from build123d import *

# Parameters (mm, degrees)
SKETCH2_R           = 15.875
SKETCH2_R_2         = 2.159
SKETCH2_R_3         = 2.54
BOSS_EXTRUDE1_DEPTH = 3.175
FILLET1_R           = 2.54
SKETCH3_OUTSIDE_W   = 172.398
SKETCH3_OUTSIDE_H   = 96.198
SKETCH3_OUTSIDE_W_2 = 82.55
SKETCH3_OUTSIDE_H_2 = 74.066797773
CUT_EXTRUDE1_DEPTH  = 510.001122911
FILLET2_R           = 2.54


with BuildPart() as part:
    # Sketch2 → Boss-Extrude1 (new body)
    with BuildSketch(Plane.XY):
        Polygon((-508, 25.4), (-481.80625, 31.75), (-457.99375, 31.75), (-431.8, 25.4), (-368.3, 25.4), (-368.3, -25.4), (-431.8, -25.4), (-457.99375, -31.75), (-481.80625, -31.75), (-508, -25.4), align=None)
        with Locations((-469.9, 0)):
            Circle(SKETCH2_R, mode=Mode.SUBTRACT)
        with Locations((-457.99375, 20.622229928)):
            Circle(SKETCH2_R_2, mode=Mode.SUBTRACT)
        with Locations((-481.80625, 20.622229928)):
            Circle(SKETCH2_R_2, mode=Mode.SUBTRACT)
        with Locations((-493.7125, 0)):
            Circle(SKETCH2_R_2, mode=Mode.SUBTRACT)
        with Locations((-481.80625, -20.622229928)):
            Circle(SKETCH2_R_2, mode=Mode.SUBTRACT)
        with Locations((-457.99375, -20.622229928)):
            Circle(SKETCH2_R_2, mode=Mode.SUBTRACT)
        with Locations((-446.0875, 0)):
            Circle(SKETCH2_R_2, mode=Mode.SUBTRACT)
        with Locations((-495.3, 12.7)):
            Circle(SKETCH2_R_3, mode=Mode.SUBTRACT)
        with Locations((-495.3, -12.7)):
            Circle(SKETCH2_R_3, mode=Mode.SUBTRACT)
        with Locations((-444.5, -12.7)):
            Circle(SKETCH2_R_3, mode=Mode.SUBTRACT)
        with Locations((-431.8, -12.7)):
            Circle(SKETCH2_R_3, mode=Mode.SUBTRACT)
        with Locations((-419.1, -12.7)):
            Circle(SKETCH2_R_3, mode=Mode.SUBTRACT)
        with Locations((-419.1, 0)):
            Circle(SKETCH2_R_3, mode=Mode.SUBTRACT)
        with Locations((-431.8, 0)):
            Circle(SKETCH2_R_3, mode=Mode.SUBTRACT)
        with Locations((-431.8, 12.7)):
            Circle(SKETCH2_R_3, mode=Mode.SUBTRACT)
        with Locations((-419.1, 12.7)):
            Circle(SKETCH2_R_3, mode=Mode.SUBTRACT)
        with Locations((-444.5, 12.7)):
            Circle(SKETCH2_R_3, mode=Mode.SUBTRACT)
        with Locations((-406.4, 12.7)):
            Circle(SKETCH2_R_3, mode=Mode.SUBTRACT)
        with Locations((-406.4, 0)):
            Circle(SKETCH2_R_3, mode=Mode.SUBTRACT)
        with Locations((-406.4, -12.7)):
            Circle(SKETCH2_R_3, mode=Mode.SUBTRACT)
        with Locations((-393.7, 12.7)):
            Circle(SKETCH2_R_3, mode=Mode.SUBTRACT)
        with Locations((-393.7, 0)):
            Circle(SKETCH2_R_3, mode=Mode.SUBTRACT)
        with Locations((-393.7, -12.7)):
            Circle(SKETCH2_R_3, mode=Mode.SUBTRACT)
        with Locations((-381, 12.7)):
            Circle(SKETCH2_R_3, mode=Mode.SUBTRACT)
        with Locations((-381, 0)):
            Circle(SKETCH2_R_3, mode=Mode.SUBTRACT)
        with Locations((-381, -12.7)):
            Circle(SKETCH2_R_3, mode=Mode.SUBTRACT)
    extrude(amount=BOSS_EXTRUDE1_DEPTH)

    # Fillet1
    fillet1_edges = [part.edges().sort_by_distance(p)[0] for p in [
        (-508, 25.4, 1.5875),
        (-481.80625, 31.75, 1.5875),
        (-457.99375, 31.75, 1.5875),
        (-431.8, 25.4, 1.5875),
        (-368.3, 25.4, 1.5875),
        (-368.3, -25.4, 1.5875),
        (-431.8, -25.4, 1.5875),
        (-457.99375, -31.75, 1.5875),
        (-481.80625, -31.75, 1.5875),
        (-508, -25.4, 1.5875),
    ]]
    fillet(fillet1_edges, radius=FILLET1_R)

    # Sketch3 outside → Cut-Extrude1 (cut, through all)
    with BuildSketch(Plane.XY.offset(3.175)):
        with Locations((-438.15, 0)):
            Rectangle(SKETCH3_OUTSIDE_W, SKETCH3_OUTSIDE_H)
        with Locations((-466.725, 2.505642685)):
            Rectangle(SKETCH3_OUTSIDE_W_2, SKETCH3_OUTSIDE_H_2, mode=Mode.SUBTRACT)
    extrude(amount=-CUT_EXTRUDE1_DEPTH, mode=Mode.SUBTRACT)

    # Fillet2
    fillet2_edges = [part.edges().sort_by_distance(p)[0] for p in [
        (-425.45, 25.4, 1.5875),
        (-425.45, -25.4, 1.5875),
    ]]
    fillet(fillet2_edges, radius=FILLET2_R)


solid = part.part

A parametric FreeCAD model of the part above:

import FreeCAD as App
import Part
import Sketcher
from FreeCAD import Vector
Q = App.Units.Quantity


def edges_at(feature, points):
    """Names of the edges that pass closest to the given points."""
    edges = feature.Shape.Edges
    near = lambda p: min(range(len(edges)), key=lambda i: edges[i].distToShape(Part.Vertex(*p))[0])
    return sorted({f"Edge{near(p) + 1}" for p in points})


def add_polygon(sketch, points):
    """Adds a closed chain of lines whose ends are joined by coincident constraints."""
    first, n = sketch.GeometryCount, len(points)
    for a, b in zip(points, points[1:] + points[:1]):
        sketch.addGeometry(Part.LineSegment(App.Vector(*a, 0), App.Vector(*b, 0)), False)
    for i in range(n):
        sketch.addConstraint(Sketcher.Constraint("Coincident", first + i, 2, first + (i + 1) % n, 1))

doc = App.newDocument("Part")
params = doc.addObject("Spreadsheet::Sheet", "Params")
for row, (alias, value) in enumerate([
    ("sketch1_diameter", "0.2 in"),
    ("sketch1_diameter2", "0.17 in"),
    ("sketch1_diameter3", "1.25 in"),
    ("sketch1_height", "2 in"),
    ("sketch1_width", "2.5 in"),
    ("pad1_length", "0.125 in"),
    ("fillet_radius", "0.1 in"),
    ("sketch2_width", "3.25 in"),
    ("fillet2_radius", "0.1 in"),
], start=1):
    params.set(f"A{row}", alias)
    params.set(f"B{row}", "=" + value)
    params.setAlias(f"B{row}", alias)

body = doc.addObject("PartDesign::Body", "Body")

# Sketch on XY plane
sketch1 = body.newObject("Sketcher::SketchObject", "Sketch")
sketch1.AttachmentSupport = (doc.getObject("XY_Plane"), [""])
sketch1.MapMode = "FlatFace"
add_polygon(sketch1, [(-481.8, 31.8), (-508, 25.4), (-508, -25.4), (-481.8, -31.8), (-458, -31.8), (-431.8, -25.4), (-368.3, -25.4), (-368.3, 25.4), (-431.8, 25.4), (-458, 31.8)])  # lines 0-9
sketch1.addGeometry(Part.Circle(Vector(-381, -12.7, 0), Vector(0, 0, 1), 2.5), False)  # 10
sketch1.addGeometry(Part.Circle(Vector(-393.7, -12.7, 0), Vector(0, 0, 1), 2.5), False)  # 11
sketch1.addGeometry(Part.Circle(Vector(-406.4, -12.7, 0), Vector(0, 0, 1), 2.5), False)  # 12
sketch1.addGeometry(Part.Circle(Vector(-419.1, -12.7, 0), Vector(0, 0, 1), 2.5), False)  # 13
sketch1.addGeometry(Part.Circle(Vector(-431.8, -12.7, 0), Vector(0, 0, 1), 2.5), False)  # 14
sketch1.addGeometry(Part.Circle(Vector(-458, -20.6, 0), Vector(0, 0, 1), 2.2), False)  # 15
sketch1.addGeometry(Part.Circle(Vector(-444.5, -12.7, 0), Vector(0, 0, 1), 2.5), False)  # 16
sketch1.addGeometry(Part.Circle(Vector(-481.8, -20.6, 0), Vector(0, 0, 1), 2.2), False)  # 17
sketch1.addGeometry(Part.Circle(Vector(-495.3, -12.7, 0), Vector(0, 0, 1), 2.5), False)  # 18
sketch1.addGeometry(Part.Circle(Vector(-381, 0, 0), Vector(0, 0, 1), 2.5), False)  # 19
sketch1.addGeometry(Part.Circle(Vector(-393.7, 0, 0), Vector(0, 0, 1), 2.5), False)  # 20
sketch1.addGeometry(Part.Circle(Vector(-406.4, 0, 0), Vector(0, 0, 1), 2.5), False)  # 21
sketch1.addGeometry(Part.Circle(Vector(-419.1, 0, 0), Vector(0, 0, 1), 2.5), False)  # 22
sketch1.addGeometry(Part.Circle(Vector(-431.8, 0, 0), Vector(0, 0, 1), 2.5), False)  # 23
sketch1.addGeometry(Part.Circle(Vector(-381, 12.7, 0), Vector(0, 0, 1), 2.5), False)  # 24
sketch1.addGeometry(Part.Circle(Vector(-393.7, 12.7, 0), Vector(0, 0, 1), 2.5), False)  # 25
sketch1.addGeometry(Part.Circle(Vector(-406.4, 12.7, 0), Vector(0, 0, 1), 2.5), False)  # 26
sketch1.addGeometry(Part.Circle(Vector(-419.1, 12.7, 0), Vector(0, 0, 1), 2.5), False)  # 27
sketch1.addGeometry(Part.Circle(Vector(-431.8, 12.7, 0), Vector(0, 0, 1), 2.5), False)  # 28
sketch1.addGeometry(Part.Circle(Vector(-446.1, 0, 0), Vector(0, 0, 1), 2.2), False)  # 29
sketch1.addGeometry(Part.Circle(Vector(-469.9, 0, 0), Vector(0, 0, 1), 15.9), False)  # 30
sketch1.addGeometry(Part.Circle(Vector(-493.7, 0, 0), Vector(0, 0, 1), 2.2), False)  # 31
sketch1.addGeometry(Part.Circle(Vector(-444.5, 12.7, 0), Vector(0, 0, 1), 2.5), False)  # 32
sketch1.addGeometry(Part.Circle(Vector(-458, 20.6, 0), Vector(0, 0, 1), 2.2), False)  # 33
sketch1.addGeometry(Part.Circle(Vector(-495.3, 12.7, 0), Vector(0, 0, 1), 2.5), False)  # 34
sketch1.addGeometry(Part.Circle(Vector(-481.8, 20.6, 0), Vector(0, 0, 1), 2.2), False)  # 35
sketch1.addConstraint(Sketcher.Constraint("Vertical", 1))
sketch1.addConstraint(Sketcher.Constraint("Horizontal", 3))
sketch1.addConstraint(Sketcher.Constraint("Horizontal", 5))
sketch1.addConstraint(Sketcher.Constraint("Vertical", 6))
sketch1.addConstraint(Sketcher.Constraint("Horizontal", 7))
sketch1.addConstraint(Sketcher.Constraint("Horizontal", 9))
sketch1.addConstraint(Sketcher.Constraint("Equal", 10, 11))
sketch1.addConstraint(Sketcher.Constraint("Equal", 11, 12))
sketch1.addConstraint(Sketcher.Constraint("Equal", 12, 13))
sketch1.addConstraint(Sketcher.Constraint("Equal", 13, 14))
sketch1.addConstraint(Sketcher.Constraint("Equal", 14, 16))
sketch1.addConstraint(Sketcher.Constraint("Equal", 15, 17))
sketch1.addConstraint(Sketcher.Constraint("Equal", 16, 18))
sketch1.addConstraint(Sketcher.Constraint("Equal", 18, 19))
sketch1.addConstraint(Sketcher.Constraint("Equal", 19, 20))
sketch1.addConstraint(Sketcher.Constraint("Equal", 20, 21))
sketch1.addConstraint(Sketcher.Constraint("Equal", 21, 22))
sketch1.addConstraint(Sketcher.Constraint("Equal", 22, 23))
sketch1.addConstraint(Sketcher.Constraint("Equal", 23, 24))
sketch1.addConstraint(Sketcher.Constraint("Equal", 24, 25))
sketch1.addConstraint(Sketcher.Constraint("Equal", 25, 26))
sketch1.addConstraint(Sketcher.Constraint("Equal", 26, 27))
sketch1.addConstraint(Sketcher.Constraint("Equal", 27, 28))
sketch1.addConstraint(Sketcher.Constraint("Equal", 17, 29))
sketch1.addConstraint(Sketcher.Constraint("Equal", 29, 31))
sketch1.addConstraint(Sketcher.Constraint("Equal", 28, 32))
sketch1.addConstraint(Sketcher.Constraint("Equal", 31, 33))
sketch1.addConstraint(Sketcher.Constraint("Equal", 32, 34))
sketch1.addConstraint(Sketcher.Constraint("Equal", 33, 35))
sketch1.addConstraint(Sketcher.Constraint("Symmetric", 10, 3, 24, 3, -1))
sketch1.addConstraint(Sketcher.Constraint("Symmetric", 11, 3, 25, 3, -1))
sketch1.addConstraint(Sketcher.Constraint("Symmetric", 12, 3, 26, 3, -1))
sketch1.addConstraint(Sketcher.Constraint("Symmetric", 13, 3, 27, 3, -1))
sketch1.addConstraint(Sketcher.Constraint("Symmetric", 14, 3, 28, 3, -1))
sketch1.addConstraint(Sketcher.Constraint("Symmetric", 16, 3, 32, 3, -1))
sketch1.addConstraint(Sketcher.Constraint("Symmetric", 15, 3, 33, 3, -1))
sketch1.addConstraint(Sketcher.Constraint("Symmetric", 18, 3, 34, 3, -1))
sketch1.addConstraint(Sketcher.Constraint("Symmetric", 17, 3, 35, 3, -1))
sketch1.addConstraint(Sketcher.Constraint("Symmetric", 4, 2, 7, 2, -1))
sketch1.addConstraint(Sketcher.Constraint("Symmetric", 3, 2, 8, 2, -1))
sketch1.addConstraint(Sketcher.Constraint("PointOnObject", 19, 3, -1))
sketch1.addConstraint(Sketcher.Constraint("PointOnObject", 20, 3, -1))
sketch1.addConstraint(Sketcher.Constraint("PointOnObject", 21, 3, -1))
sketch1.addConstraint(Sketcher.Constraint("PointOnObject", 22, 3, -1))
sketch1.addConstraint(Sketcher.Constraint("PointOnObject", 23, 3, -1))
sketch1.addConstraint(Sketcher.Constraint("PointOnObject", 29, 3, -1))
sketch1.addConstraint(Sketcher.Constraint("PointOnObject", 30, 3, -1))
sketch1.addConstraint(Sketcher.Constraint("PointOnObject", 31, 3, -1))
sketch1.addConstraint(Sketcher.Constraint("Parallel", 0, 4))
sketch1.addConstraint(Sketcher.Constraint("Parallel", 2, 8))
sketch1.addConstraint(Sketcher.Constraint("Horizontal", 10, 3, 11, 3))
sketch1.addConstraint(Sketcher.Constraint("Horizontal", 11, 3, 12, 3))
sketch1.addConstraint(Sketcher.Constraint("Horizontal", 12, 3, 13, 3))
sketch1.addConstraint(Sketcher.Constraint("Horizontal", 13, 3, 14, 3))
sketch1.addConstraint(Sketcher.Constraint("Horizontal", 14, 3, 16, 3))
sketch1.addConstraint(Sketcher.Constraint("Horizontal", 15, 3, 17, 3))
sketch1.addConstraint(Sketcher.Constraint("Horizontal", 16, 3, 18, 3))
sketch1.addConstraint(Sketcher.Constraint("Horizontal", 1, 2, 4, 2))
sketch1.addConstraint(Sketcher.Constraint("Horizontal", 0, 2, 6, 2))
sketch1.addConstraint(Sketcher.Constraint("Vertical", 10, 3, 19, 3))
sketch1.addConstraint(Sketcher.Constraint("Vertical", 11, 3, 20, 3))
sketch1.addConstraint(Sketcher.Constraint("Vertical", 12, 3, 21, 3))
sketch1.addConstraint(Sketcher.Constraint("Vertical", 13, 3, 22, 3))
sketch1.addConstraint(Sketcher.Constraint("Vertical", 14, 3, 23, 3))
sketch1.addConstraint(Sketcher.Constraint("Vertical", 35, 3, 2, 2))
sketch1.addConstraint(Sketcher.Constraint("Vertical", 33, 3, 3, 2))
sketch1.addConstraint(Sketcher.Constraint("Vertical", 28, 3, 4, 2))
sketch1.addConstraint(Sketcher.Constraint("Diameter", 10, Q("0.2 in")))
sketch1.addConstraint(Sketcher.Constraint("Diameter", 15, Q("0.17 in")))
sketch1.addConstraint(Sketcher.Constraint("Diameter", 30, Q("1.25 in")))
sketch1.addConstraint(Sketcher.Constraint("DistanceY", 1, 2, 1, 1, Q("2 in")))
sketch1.addConstraint(Sketcher.Constraint("DistanceX", 5, 1, 5, 2, Q("2.5 in")))
sketch1.addConstraint(Sketcher.Constraint("DistanceX", 10, 3, -1, 1, Q("15 in")))
sketch1.addConstraint(Sketcher.Constraint("DistanceX", 12, 3, -1, 1, Q("16 in")))
sketch1.addConstraint(Sketcher.Constraint("DistanceX", 14, 3, -1, 1, Q("17 in")))
sketch1.addConstraint(Sketcher.Constraint("DistanceX", 0, 2, -1, 1, Q("20 in")))
sketch1.addConstraint(Sketcher.Constraint("DistanceX", 13, 3, 11, 3, Q("1 in")))
sketch1.addConstraint(Sketcher.Constraint("DistanceX", 16, 3, 13, 3, Q("1 in")))
sketch1.addConstraint(Sketcher.Constraint("DistanceX", 18, 3, 16, 3, Q("2 in")))
sketch1.addConstraint(Sketcher.Constraint("DistanceY", 10, 3, 24, 3, Q("1 in")))
sketch1.addConstraint(Sketcher.Constraint("DistanceX", 30, 3, 16, 3, Q("1 in")))
sketch1.addConstraint(Sketcher.Constraint("DistanceX", 11, 3, 5, 2, Q("1 in")))
sketch1.addConstraint(Sketcher.Constraint("DistanceX", 3, 1, 3, 2, Q("0.9375 in")))
sketch1.addConstraint(Sketcher.Constraint("DistanceY", 2, 2, -1, 1, Q("1.25 in")))
sketch1.addConstraint(Sketcher.Constraint("DistanceX", 29, 3, -1, 1, Q("17.5625 in")))
sketch1.addConstraint(Sketcher.Constraint("DistanceX", 31, 3, -1, 1, Q("19.4375 in")))
sketch1.addConstraint(Sketcher.Constraint("DistanceY", 15, 3, -1, 1, Q("20.62223 mm")))
sketch1.setExpression("Constraints[77]", "Params.sketch1_diameter")
sketch1.setExpression("Constraints[78]", "Params.sketch1_diameter2")
sketch1.setExpression("Constraints[79]", "Params.sketch1_diameter3")
sketch1.setExpression("Constraints[80]", "Params.sketch1_height")
sketch1.setExpression("Constraints[81]", "Params.sketch1_width")
pad1 = body.newObject("PartDesign::Pad", "Pad")
pad1.Profile = sketch1
pad1.setExpression("Length", "Params.pad1_length")
doc.recompute()

fillet = body.newObject("PartDesign::Fillet", "Fillet")
fillet.Base = (pad1, edges_at(pad1, [
    (-508, 25.4, 1.587),
    (-481.806, 31.75, 1.587),
    (-457.994, 31.75, 1.587),
    (-431.8, 25.4, 1.587),
    (-368.3, 25.4, 1.587),
    (-368.3, -25.4, 1.587),
    (-431.8, -25.4, 1.587),
    (-457.994, -31.75, 1.587),
    (-481.806, -31.75, 1.587),
    (-508, -25.4, 1.587),
]))
fillet.setExpression("Radius", "Params.fillet_radius")

# Sketch on XY plane
sketch2 = body.newObject("Sketcher::SketchObject", "Sketch001")
sketch2.AttachmentSupport = (doc.getObject("XY_Plane"), [""])
sketch2.MapMode = "FlatFace"
sketch2.AttachmentOffset = App.Placement(Vector(0, 0, 0.125 * 25.4), App.Rotation())
add_polygon(sketch2, [(-524, 48), (-524, -48), (-352, -48), (-352, 48)])  # lines 0-3
add_polygon(sketch2, [(-425, -35), (-508, -35), (-508, 40), (-425, 40)])  # lines 4-7
sketch2.addConstraint(Sketcher.Constraint("Vertical", 0))
sketch2.addConstraint(Sketcher.Constraint("Horizontal", 1))
sketch2.addConstraint(Sketcher.Constraint("Vertical", 2))
sketch2.addConstraint(Sketcher.Constraint("Horizontal", 3))
sketch2.addConstraint(Sketcher.Constraint("Horizontal", 4))
sketch2.addConstraint(Sketcher.Constraint("Vertical", 5))
sketch2.addConstraint(Sketcher.Constraint("Horizontal", 6))
sketch2.addConstraint(Sketcher.Constraint("Vertical", 7))
sketch2.addConstraint(Sketcher.Constraint("DistanceX", 4, 2, -1, 1, Q("20 in")))
sketch2.addConstraint(Sketcher.Constraint("DistanceX", 4, 2, 4, 1, Q("3.25 in")))
sketch2.addConstraint(Sketcher.Constraint("DistanceX", 1, 1, 1, 2, Q("172.398 mm")))
sketch2.addConstraint(Sketcher.Constraint("DistanceY", 0, 2, 0, 1, Q("96.198 mm")))
sketch2.addConstraint(Sketcher.Constraint("DistanceX", 0, 2, -1, 1, Q("524.349 mm")))
sketch2.addConstraint(Sketcher.Constraint("DistanceY", 0, 2, -1, 1, Q("48.099 mm")))
sketch2.addConstraint(Sketcher.Constraint("DistanceY", 5, 1, 5, 2, Q("74.066798 mm")))
sketch2.addConstraint(Sketcher.Constraint("DistanceY", -1, 1, 5, 2, Q("39.539042 mm")))
sketch2.setExpression("Constraints[17]", "Params.sketch2_width")
pocket1 = body.newObject("PartDesign::Pocket", "Pocket")
pocket1.Profile = sketch2
pocket1.Type = "ThroughAll"
doc.recompute()

fillet2 = body.newObject("PartDesign::Fillet", "Fillet001")
fillet2.Base = (pocket1, edges_at(pocket1, [(-425.45, 25.4, 1.587), (-425.45, -25.4, 1.587)]))
fillet2.setExpression("Radius", "Params.fillet2_radius")

doc.recompute()
